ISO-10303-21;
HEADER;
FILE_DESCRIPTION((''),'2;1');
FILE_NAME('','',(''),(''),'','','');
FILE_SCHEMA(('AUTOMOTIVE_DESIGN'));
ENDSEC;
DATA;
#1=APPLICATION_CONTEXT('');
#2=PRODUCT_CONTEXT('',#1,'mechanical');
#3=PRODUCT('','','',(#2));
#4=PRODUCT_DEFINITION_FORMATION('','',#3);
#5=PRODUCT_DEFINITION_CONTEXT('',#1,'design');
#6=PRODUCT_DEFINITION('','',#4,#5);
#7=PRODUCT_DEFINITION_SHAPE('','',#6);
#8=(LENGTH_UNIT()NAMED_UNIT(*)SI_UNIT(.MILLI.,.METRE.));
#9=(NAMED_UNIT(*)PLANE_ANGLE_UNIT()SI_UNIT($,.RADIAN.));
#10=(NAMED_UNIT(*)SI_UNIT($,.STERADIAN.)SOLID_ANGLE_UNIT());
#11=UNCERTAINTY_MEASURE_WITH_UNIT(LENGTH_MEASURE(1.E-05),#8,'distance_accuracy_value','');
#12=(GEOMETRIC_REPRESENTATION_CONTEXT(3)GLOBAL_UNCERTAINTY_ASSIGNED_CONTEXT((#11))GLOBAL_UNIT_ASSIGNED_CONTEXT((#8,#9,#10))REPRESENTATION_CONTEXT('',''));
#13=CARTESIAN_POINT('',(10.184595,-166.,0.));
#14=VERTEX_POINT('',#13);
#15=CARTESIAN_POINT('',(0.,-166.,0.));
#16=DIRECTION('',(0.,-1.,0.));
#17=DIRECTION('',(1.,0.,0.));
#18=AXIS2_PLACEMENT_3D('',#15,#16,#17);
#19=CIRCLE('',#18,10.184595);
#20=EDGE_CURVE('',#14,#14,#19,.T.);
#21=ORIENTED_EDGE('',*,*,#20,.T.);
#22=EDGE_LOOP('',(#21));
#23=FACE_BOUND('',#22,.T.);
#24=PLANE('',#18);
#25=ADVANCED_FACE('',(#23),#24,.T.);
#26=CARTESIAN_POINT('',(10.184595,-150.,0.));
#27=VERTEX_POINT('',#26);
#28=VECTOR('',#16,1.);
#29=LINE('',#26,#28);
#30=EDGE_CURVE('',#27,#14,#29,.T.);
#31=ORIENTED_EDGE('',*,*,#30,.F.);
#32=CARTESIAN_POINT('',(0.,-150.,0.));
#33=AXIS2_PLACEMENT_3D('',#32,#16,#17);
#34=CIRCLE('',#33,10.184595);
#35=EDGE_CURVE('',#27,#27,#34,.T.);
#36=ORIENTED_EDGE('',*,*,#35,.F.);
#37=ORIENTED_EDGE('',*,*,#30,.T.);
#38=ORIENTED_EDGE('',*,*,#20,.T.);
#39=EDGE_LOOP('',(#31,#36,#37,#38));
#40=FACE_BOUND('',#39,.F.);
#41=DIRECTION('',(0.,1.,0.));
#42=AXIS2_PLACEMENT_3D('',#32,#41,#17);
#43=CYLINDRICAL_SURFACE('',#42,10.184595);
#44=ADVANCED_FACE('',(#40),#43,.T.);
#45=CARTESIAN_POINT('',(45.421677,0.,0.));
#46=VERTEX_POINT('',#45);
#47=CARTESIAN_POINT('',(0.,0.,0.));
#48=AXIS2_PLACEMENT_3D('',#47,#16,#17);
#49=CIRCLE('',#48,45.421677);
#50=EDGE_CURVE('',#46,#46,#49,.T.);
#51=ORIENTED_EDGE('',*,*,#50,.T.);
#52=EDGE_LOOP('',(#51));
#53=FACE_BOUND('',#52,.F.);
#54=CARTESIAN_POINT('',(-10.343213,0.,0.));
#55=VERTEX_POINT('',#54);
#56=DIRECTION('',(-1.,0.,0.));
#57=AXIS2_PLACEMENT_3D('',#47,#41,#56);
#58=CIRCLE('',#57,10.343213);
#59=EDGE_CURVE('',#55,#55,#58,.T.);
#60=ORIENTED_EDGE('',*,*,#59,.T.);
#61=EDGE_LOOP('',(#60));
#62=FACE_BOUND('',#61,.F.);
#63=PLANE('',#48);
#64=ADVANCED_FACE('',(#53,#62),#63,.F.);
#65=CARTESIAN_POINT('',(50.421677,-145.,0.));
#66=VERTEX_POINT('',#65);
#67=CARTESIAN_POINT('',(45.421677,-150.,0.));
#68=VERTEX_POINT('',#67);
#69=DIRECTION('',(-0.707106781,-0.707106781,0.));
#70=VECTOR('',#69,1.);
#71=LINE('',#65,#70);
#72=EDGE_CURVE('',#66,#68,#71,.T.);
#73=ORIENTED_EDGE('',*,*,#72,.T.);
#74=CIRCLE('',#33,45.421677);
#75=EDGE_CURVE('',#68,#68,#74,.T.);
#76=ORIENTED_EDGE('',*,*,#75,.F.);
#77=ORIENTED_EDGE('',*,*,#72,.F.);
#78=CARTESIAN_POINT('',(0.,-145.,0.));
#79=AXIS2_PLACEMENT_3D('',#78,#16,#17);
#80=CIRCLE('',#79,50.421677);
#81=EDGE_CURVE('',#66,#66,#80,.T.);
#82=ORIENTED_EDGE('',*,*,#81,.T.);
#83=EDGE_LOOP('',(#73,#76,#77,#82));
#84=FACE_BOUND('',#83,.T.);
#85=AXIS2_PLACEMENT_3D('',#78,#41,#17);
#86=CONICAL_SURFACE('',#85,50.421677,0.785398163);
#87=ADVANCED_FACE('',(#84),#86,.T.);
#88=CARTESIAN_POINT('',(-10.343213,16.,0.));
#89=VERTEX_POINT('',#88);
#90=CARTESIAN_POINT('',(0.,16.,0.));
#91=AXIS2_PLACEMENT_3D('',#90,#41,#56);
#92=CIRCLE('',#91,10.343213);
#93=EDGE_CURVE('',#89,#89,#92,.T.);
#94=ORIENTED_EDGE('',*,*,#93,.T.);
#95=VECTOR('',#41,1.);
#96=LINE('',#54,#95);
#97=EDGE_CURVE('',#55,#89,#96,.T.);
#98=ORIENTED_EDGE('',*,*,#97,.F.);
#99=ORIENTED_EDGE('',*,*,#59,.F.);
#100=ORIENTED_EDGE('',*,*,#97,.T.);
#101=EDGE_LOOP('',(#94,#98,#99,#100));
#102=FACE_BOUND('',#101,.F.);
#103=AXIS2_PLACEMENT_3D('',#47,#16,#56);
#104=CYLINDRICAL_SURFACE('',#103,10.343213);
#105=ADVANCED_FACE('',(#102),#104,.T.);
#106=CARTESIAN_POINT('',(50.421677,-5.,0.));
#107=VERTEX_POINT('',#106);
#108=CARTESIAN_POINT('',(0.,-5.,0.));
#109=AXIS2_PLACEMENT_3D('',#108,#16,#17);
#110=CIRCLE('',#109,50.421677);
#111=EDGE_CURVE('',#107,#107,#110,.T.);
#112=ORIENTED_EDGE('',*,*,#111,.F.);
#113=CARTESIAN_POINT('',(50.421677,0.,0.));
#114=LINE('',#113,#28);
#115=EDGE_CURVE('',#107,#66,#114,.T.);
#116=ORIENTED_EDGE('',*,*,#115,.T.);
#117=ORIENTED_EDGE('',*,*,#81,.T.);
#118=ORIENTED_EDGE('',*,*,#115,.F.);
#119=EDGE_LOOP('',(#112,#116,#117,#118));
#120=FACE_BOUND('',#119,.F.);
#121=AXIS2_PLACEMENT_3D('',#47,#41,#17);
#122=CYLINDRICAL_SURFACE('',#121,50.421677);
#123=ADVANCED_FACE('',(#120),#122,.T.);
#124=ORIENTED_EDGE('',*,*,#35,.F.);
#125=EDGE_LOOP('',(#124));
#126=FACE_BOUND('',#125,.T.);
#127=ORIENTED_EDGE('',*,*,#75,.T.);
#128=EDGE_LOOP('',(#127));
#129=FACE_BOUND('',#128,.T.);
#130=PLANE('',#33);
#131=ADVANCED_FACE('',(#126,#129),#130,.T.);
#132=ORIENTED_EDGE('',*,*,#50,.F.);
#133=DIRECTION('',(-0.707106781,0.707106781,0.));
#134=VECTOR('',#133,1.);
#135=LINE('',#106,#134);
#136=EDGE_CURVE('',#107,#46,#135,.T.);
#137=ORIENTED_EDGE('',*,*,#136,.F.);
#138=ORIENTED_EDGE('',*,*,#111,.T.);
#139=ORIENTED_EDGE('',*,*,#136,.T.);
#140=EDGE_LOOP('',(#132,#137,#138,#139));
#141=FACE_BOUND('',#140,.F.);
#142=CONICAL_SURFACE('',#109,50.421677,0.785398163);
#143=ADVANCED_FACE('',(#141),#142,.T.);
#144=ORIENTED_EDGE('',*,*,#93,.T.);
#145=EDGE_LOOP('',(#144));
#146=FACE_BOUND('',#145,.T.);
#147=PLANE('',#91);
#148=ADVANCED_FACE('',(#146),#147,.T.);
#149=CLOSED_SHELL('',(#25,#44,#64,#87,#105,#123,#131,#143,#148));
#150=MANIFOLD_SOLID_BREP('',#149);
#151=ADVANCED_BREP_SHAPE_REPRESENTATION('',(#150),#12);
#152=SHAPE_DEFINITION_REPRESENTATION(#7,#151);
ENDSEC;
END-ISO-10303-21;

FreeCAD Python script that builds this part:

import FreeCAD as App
import Part
import Sketcher

V = App.Vector


def edges_at(feature, points):
    """Names of the edges that pass closest to the given points."""
    edges = feature.Shape.Edges
    near = lambda p: min(range(len(edges)), key=lambda i: edges[i].distToShape(Part.Vertex(*p))[0])
    return sorted({f"Edge{near(p) + 1}" for p in points})

doc = App.newDocument("Part")
body = doc.addObject("PartDesign::Body", "Body")

# Sketch on XZ plane
sketch1 = doc.addObject("Sketcher::SketchObject", "Sketch")
body.addObject(sketch1)
sketch1.AttachmentSupport = (doc.XZ_Plane, [""])
sketch1.MapMode = "FlatFace"
sketch1.addGeometry(Part.Circle(V(0, 0, 0), V(0, 0, 1), 50), False)
sketch1.addConstraint(Sketcher.Constraint("Coincident", 0, 3, -1, 1))
sketch1.addConstraint(Sketcher.Constraint("Diameter", 0, 100.843354))
pad1 = doc.addObject("PartDesign::Pad", "Pad")
body.addObject(pad1)
pad1.Profile = sketch1
pad1.Length = 150
doc.recompute()

chamfer = doc.addObject("PartDesign::Chamfer", "Chamfer")
body.addObject(chamfer)
chamfer.Base = (pad1, edges_at(pad1, [(-50.422, -150, 0)]))
chamfer.Size = 5

# Sketch on XZ plane
sketch2 = doc.addObject("Sketcher::SketchObject", "Sketch001")
body.addObject(sketch2)
sketch2.AttachmentSupport = (doc.XZ_Plane, [""])
sketch2.MapMode = "FlatFace"
sketch2.AttachmentOffset = App.Placement(V(0, 0, 150), App.Rotation())
sketch2.addGeometry(Part.Circle(V(0, 0, 0), V(0, 0, 1), 10), False)
sketch2.addConstraint(Sketcher.Constraint("Coincident", 0, 3, -1, 1))
sketch2.addConstraint(Sketcher.Constraint("Diameter", 0, 20.36919))
pad2 = doc.addObject("PartDesign::Pad", "Pad001")
body.addObject(pad2)
pad2.Profile = sketch2
pad2.Length = 16
doc.recompute()

chamfer2 = doc.addObject("PartDesign::Chamfer", "Chamfer001")
body.addObject(chamfer2)
chamfer2.Base = (pad2, edges_at(pad2, [(-50.422, 0, 0)]))
chamfer2.Size = 5

# Sketch on XZ plane
sketch3 = doc.addObject("Sketcher::SketchObject", "Sketch002")
body.addObject(sketch3)
sketch3.AttachmentSupport = (doc.XZ_Plane, [""])
sketch3.MapMode = "FlatFace"
sketch3.addGeometry(Part.Circle(V(0, 0, 0), V(0, 0, 1), 10), False)
sketch3.addConstraint(Sketcher.Constraint("Coincident", 0, 3, -1, 1))
sketch3.addConstraint(Sketcher.Constraint("Diameter", 0, 20.686426))
pad3 = doc.addObject("PartDesign::Pad", "Pad002")
body.addObject(pad3)
pad3.Profile = sketch3
pad3.Length = 16
pad3.Reversed = True

doc.recompute()
